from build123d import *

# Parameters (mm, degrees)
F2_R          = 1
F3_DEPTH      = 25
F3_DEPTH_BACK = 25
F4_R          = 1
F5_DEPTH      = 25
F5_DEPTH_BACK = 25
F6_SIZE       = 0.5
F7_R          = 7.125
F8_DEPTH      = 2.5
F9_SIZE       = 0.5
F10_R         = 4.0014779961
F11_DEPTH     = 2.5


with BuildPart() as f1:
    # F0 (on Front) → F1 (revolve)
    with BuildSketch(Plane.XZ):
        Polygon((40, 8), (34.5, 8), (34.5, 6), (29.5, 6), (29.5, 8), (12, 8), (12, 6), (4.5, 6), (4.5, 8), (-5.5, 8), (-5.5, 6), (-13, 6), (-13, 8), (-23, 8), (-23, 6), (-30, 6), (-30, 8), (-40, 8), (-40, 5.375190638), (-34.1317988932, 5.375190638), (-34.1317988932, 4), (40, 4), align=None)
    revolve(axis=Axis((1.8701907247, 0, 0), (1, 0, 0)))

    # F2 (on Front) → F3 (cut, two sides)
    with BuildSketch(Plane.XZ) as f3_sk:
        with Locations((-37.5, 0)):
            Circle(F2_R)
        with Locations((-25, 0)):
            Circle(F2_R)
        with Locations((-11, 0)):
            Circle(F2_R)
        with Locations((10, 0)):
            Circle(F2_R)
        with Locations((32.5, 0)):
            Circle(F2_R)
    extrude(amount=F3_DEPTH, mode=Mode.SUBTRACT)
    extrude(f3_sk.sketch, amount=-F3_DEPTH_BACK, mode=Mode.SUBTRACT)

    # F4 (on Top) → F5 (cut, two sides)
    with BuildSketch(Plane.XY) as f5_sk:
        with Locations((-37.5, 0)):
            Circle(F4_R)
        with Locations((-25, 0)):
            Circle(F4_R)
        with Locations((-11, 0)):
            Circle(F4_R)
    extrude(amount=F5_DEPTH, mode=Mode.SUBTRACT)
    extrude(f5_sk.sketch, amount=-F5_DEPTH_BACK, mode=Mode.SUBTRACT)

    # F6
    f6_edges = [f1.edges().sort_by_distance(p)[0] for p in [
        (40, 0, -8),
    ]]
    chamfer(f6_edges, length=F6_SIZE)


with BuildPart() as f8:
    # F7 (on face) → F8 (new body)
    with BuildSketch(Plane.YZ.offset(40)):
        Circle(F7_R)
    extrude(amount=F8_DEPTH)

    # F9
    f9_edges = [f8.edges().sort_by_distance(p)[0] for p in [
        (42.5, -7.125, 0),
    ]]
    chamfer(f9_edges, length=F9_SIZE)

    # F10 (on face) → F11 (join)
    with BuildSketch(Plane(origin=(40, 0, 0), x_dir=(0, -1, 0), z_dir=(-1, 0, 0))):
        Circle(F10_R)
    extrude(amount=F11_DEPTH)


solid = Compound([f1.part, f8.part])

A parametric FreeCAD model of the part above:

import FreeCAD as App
import Part
import Sketcher

V = App.Vector


def edges_at(feature, points):
    """Names of the edges that pass closest to the given points."""
    edges = feature.Shape.Edges
    near = lambda p: min(range(len(edges)), key=lambda i: edges[i].distToShape(Part.Vertex(*p))[0])
    return sorted({f"Edge{near(p) + 1}" for p in points})


def add_polygon(sketch, points):
    """Adds a closed chain of lines whose ends are joined by coincident constraints."""
    first, n = sketch.GeometryCount, len(points)
    for a, b in zip(points, points[1:] + points[:1]):
        sketch.addGeometry(Part.LineSegment(App.Vector(*a, 0), App.Vector(*b, 0)), False)
    for i in range(n):
        sketch.addConstraint(Sketcher.Constraint("Coincident", first + i, 2, first + (i + 1) % n, 1))

doc = App.newDocument("Part")
body = doc.addObject("PartDesign::Body", "Body")

# Sketch on XZ plane
sketch1 = doc.addObject("Sketcher::SketchObject", "Sketch")
body.addObject(sketch1)
sketch1.AttachmentSupport = (doc.XZ_Plane, [""])
sketch1.MapMode = "FlatFace"
add_polygon(sketch1, [(40, 8), (34.5, 8), (34.5, 6), (29.5, 6), (29.5, 8), (12, 8), (12, 6), (4.5, 6), (4.5, 8), (-5.5, 8), (-5.5, 6), (-13, 6), (-13, 8), (-23, 8), (-23, 6), (-30, 6), (-30, 8), (-40, 8), (-40, 5.4), (-34.1, 5.4), (-34.1, 4), (40, 4)])  # lines 0-21
sketch1.addConstraint([
    Sketcher.Constraint("Horizontal", 0),
    Sketcher.Constraint("Vertical", 1),
    Sketcher.Constraint("Horizontal", 2),
    Sketcher.Constraint("Vertical", 3),
    Sketcher.Constraint("Horizontal", 4),
    Sketcher.Constraint("Vertical", 5),
    Sketcher.Constraint("Horizontal", 6),
    Sketcher.Constraint("Vertical", 7),
    Sketcher.Constraint("Horizontal", 8),
    Sketcher.Constraint("Vertical", 9),
    Sketcher.Constraint("Horizontal", 10),
    Sketcher.Constraint("Vertical", 11),
    Sketcher.Constraint("Horizontal", 12),
    Sketcher.Constraint("Vertical", 13),
    Sketcher.Constraint("Horizontal", 14),
    Sketcher.Constraint("Vertical", 15),
    Sketcher.Constraint("Horizontal", 16),
    Sketcher.Constraint("Vertical", 17),
    Sketcher.Constraint("Horizontal", 18),
    Sketcher.Constraint("Vertical", 19),
    Sketcher.Constraint("Horizontal", 20),
    Sketcher.Constraint("Vertical", 21),
    Sketcher.Constraint("Symmetric", 16, 2, 21, 2, -2),
    Sketcher.Constraint("Horizontal", 0, 2, 3, 2),
    Sketcher.Constraint("Horizontal", 2, 2, 5, 2),
    Sketcher.Constraint("Horizontal", 4, 2, 7, 2),
    Sketcher.Constraint("Horizontal", 6, 2, 9, 2),
    Sketcher.Constraint("Horizontal", 8, 2, 11, 2),
    Sketcher.Constraint("Horizontal", 10, 2, 13, 2),
    Sketcher.Constraint("Equal", 6, 10),
    Sketcher.Constraint("Equal", 8, 12),
    Sketcher.Constraint("Equal", 12, 16),
    Sketcher.Constraint("DistanceX", 2, 2, 2, 1, 5.0),
    Sketcher.Constraint("DistanceX", 8, 2, 8, 1, 10.0),
    Sketcher.Constraint("DistanceX", 14, 2, 14, 1, 7.0),
    Sketcher.Constraint("DistanceY", 1, 2, 1, 1, 2.0),
    Sketcher.Constraint("DistanceY", 21, 1, 21, 2, 4.0),
    Sketcher.Constraint("DistanceX", 0, 2, 0, 1, 5.5),
    Sketcher.Constraint("DistanceX", 4, 2, 4, 1, 17.5),
    Sketcher.Constraint("DistanceX", 6, 2, 6, 1, 7.5),
    Sketcher.Constraint("DistanceY", -1, 1, 0, 2, 8.0),
    Sketcher.Constraint("DistanceX", 18, 1, 18, 2, 5.868201),
    Sketcher.Constraint("DistanceY", 17, 2, 17, 1, 2.624809),
])
revolution = doc.addObject("PartDesign::Revolution", "Revolution")
body.addObject(revolution)
revolution.Profile = sketch1
revolution.ReferenceAxis = (sketch1, ["H_Axis"])
revolution.Angle = 360

# Sketch on XZ plane
sketch2 = doc.addObject("Sketcher::SketchObject", "Sketch001")
body.addObject(sketch2)
sketch2.AttachmentSupport = (doc.XZ_Plane, [""])
sketch2.MapMode = "FlatFace"
sketch2.addGeometry([
    Part.Circle(V(-37.5, 0, 0), V(0, 0, 1), 1),  # 0
    Part.Circle(V(-25, 0, 0), V(0, 0, 1), 1),  # 1
    Part.Circle(V(-11, 0, 0), V(0, 0, 1), 1),  # 2
    Part.Circle(V(10, 0, 0), V(0, 0, 1), 1),  # 3
    Part.Circle(V(32.5, 0, 0), V(0, 0, 1), 1),  # 4
], False)
sketch2.addConstraint([
    Sketcher.Constraint("Equal", 0, 1),
    Sketcher.Constraint("Equal", 1, 2),
    Sketcher.Constraint("Equal", 2, 3),
    Sketcher.Constraint("Equal", 3, 4),
    Sketcher.Constraint("PointOnObject", 0, 3, -1),
    Sketcher.Constraint("PointOnObject", 1, 3, -1),
    Sketcher.Constraint("PointOnObject", 2, 3, -1),
    Sketcher.Constraint("PointOnObject", 3, 3, -1),
    Sketcher.Constraint("PointOnObject", 4, 3, -1),
    Sketcher.Constraint("Diameter", 0, 2.0),
    Sketcher.Constraint("DistanceX", 1, 3, -1, 1, 25.0),
    Sketcher.Constraint("DistanceX", 2, 3, -1, 1, 11.0),
    Sketcher.Constraint("DistanceX", -1, 1, 3, 3, 10.0),
    Sketcher.Constraint("DistanceX", 0, 3, 4, 3, 70.0),
    Sketcher.Constraint("DistanceX", 0, 3, -1, 1, 37.5),
])
pocket1 = doc.addObject("PartDesign::Pocket", "Pocket")
body.addObject(pocket1)
pocket1.Profile = sketch2
pocket1.Type = "ThroughAll"
pocket1.Midplane = True

# Sketch on XY plane
sketch3 = doc.addObject("Sketcher::SketchObject", "Sketch002")
body.addObject(sketch3)
sketch3.AttachmentSupport = (doc.XY_Plane, [""])
sketch3.MapMode = "FlatFace"
sketch3.addGeometry([
    Part.Circle(V(-37.5, 0, 0), V(0, 0, 1), 1),
    Part.Circle(V(-25, 0, 0), V(0, 0, 1), 1),
    Part.Circle(V(-11, 0, 0), V(0, 0, 1), 1),
], False)
sketch3.addConstraint([
    Sketcher.Constraint("Equal", 0, 1),
    Sketcher.Constraint("Equal", 1, 2),
    Sketcher.Constraint("PointOnObject", 0, 3, -1),
    Sketcher.Constraint("PointOnObject", 1, 3, -1),
    Sketcher.Constraint("PointOnObject", 2, 3, -1),
    Sketcher.Constraint("Diameter", 0, 2.0),
    Sketcher.Constraint("DistanceX", 1, 3, -1, 1, 25.0),
    Sketcher.Constraint("DistanceX", 2, 3, -1, 1, 11.0),
    Sketcher.Constraint("DistanceX", 0, 3, -1, 1, 37.5),
])
pocket2 = doc.addObject("PartDesign::Pocket", "Pocket001")
body.addObject(pocket2)
pocket2.Profile = sketch3
pocket2.Type = "ThroughAll"
pocket2.Midplane = True
doc.recompute()

chamfer = doc.addObject("PartDesign::Chamfer", "Chamfer")
body.addObject(chamfer)
chamfer.Base = (pocket2, edges_at(pocket2, [(40, 0, -8)]))
chamfer.Size = 0.5
body2 = doc.addObject("PartDesign::Body", "Body001")

# Sketch on YZ plane
sketch4 = doc.addObject("Sketcher::SketchObject", "Sketch003")
body2.addObject(sketch4)
sketch4.AttachmentSupport = (doc.getObject("YZ_Plane001"), [""])
sketch4.MapMode = "FlatFace"
sketch4.AttachmentOffset = App.Placement(V(0, 0, 40), App.Rotation())
sketch4.addGeometry(Part.Circle(V(0, 0, 0), V(0, 0, 1), 7), False)
sketch4.addConstraint([
    Sketcher.Constraint("Coincident", 0, 3, -1, 1),
    Sketcher.Constraint("Diameter", 0, 14.25),
])
pad1 = doc.addObject("PartDesign::Pad", "Pad")
body2.addObject(pad1)
pad1.Profile = sketch4
pad1.Length = 2.5
doc.recompute()

chamfer2 = doc.addObject("PartDesign::Chamfer", "Chamfer001")
body2.addObject(chamfer2)
chamfer2.Base = (pad1, edges_at(pad1, [(42.5, -7.125, 0)]))
chamfer2.Size = 0.5

# Sketch on YZ plane
sketch5 = doc.addObject("Sketcher::SketchObject", "Sketch004")
body2.addObject(sketch5)
sketch5.AttachmentSupport = (doc.getObject("YZ_Plane001"), [""])
sketch5.MapMode = "FlatFace"
sketch5.AttachmentOffset = App.Placement(V(0, 0, 40), App.Rotation())
sketch5.addGeometry(Part.Circle(V(0, 0, 0), V(0, 0, 1), 4), False)
sketch5.addConstraint([
    Sketcher.Constraint("Coincident", 0, 3, -1, 1),
    Sketcher.Constraint("Diameter", 0, 8.002956),
])
pad2 = doc.addObject("PartDesign::Pad", "Pad001")
body2.addObject(pad2)
pad2.Profile = sketch5
pad2.Length = 2.5
pad2.Reversed = True

doc.recompute()
